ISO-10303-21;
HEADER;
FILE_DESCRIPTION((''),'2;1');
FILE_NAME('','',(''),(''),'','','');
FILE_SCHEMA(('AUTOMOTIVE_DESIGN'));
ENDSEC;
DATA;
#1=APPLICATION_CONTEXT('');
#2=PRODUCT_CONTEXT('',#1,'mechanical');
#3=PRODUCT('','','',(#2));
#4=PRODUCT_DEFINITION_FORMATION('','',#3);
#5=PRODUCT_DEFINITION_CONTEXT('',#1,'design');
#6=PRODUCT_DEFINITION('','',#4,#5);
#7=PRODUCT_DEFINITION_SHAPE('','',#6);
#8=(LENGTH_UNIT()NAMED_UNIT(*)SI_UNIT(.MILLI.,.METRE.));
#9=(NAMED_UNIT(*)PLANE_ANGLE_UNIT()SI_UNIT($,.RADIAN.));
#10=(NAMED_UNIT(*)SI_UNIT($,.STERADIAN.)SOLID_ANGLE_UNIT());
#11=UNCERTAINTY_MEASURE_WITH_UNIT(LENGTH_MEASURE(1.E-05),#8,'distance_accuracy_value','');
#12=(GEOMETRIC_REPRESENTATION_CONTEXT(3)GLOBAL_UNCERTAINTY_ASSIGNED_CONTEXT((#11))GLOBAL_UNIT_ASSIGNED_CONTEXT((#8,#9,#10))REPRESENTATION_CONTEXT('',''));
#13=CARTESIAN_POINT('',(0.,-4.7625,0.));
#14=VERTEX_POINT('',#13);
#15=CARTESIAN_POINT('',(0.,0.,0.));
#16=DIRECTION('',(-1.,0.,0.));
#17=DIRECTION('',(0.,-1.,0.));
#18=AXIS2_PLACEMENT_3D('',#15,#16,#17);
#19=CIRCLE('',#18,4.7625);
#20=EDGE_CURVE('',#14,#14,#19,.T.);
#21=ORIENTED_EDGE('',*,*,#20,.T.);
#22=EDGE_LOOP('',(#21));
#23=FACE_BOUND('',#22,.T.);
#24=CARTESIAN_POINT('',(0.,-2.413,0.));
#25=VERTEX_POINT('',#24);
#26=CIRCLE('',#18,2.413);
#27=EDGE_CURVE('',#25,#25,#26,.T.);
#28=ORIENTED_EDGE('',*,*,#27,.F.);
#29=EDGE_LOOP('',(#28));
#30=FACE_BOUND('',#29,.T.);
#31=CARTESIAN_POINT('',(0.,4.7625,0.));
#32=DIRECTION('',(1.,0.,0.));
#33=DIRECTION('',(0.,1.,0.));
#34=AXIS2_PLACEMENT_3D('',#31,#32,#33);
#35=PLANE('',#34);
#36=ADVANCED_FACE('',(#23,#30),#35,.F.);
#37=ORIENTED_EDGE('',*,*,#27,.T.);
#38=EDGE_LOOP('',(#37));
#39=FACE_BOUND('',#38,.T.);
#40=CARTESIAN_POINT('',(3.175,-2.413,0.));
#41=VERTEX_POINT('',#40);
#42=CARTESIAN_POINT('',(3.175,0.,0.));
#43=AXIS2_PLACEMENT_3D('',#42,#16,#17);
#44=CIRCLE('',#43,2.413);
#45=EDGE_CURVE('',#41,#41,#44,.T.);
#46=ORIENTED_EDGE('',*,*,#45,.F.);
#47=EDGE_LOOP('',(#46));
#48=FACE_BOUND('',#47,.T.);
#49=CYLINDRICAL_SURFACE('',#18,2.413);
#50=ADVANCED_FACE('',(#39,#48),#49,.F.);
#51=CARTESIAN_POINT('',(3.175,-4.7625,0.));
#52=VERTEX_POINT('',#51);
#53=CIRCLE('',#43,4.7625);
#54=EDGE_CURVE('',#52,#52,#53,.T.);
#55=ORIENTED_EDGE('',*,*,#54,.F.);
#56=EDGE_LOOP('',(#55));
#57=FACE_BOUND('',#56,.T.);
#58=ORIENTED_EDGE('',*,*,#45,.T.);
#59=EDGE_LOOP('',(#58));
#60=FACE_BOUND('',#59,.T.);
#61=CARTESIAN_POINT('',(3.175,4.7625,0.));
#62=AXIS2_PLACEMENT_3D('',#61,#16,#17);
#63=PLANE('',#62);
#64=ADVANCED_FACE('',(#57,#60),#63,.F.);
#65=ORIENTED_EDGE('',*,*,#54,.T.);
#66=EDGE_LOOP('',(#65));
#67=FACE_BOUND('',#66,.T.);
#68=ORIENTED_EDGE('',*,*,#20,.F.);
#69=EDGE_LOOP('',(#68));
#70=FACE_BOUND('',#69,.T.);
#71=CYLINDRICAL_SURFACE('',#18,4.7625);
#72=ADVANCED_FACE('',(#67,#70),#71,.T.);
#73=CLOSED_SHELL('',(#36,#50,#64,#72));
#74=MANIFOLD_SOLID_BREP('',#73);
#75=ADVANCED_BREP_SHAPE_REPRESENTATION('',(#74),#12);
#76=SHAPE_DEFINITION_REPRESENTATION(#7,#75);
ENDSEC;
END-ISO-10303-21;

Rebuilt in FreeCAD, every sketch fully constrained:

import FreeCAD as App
import Part
import Sketcher
from FreeCAD import Vector
Q = App.Units.Quantity

doc = App.newDocument("Part")
body = doc.addObject("PartDesign::Body", "Body")

sketch1 = body.newObject("Sketcher::SketchObject", "Sketch")
sketch1.AttachmentSupport = (doc.getObject("XY_Plane"), [""])
sketch1.MapMode = "FlatFace"
sketch1.addGeometry(Part.LineSegment(Vector(0, 4.7625, 0), Vector(0, 2.413, 0)), False)
sketch1.addGeometry(Part.LineSegment(Vector(0, 2.413, 0), Vector(3.175, 2.413, 0)), False)
sketch1.addGeometry(Part.LineSegment(Vector(3.175, 2.413, 0), Vector(3.175, 4.7625, 0)), False)
sketch1.addGeometry(Part.LineSegment(Vector(3.175, 4.7625, 0), Vector(0, 4.7625, 0)), False)
sketch1.addConstraint(Sketcher.Constraint("Coincident", 0, 2, 1, 1))
sketch1.addConstraint(Sketcher.Constraint("Coincident", 1, 2, 2, 1))
sketch1.addConstraint(Sketcher.Constraint("Coincident", 2, 2, 3, 1))
sketch1.addConstraint(Sketcher.Constraint("Coincident", 3, 2, 0, 1))
sketch1.addConstraint(Sketcher.Constraint("Vertical", 0))
sketch1.addConstraint(Sketcher.Constraint("Horizontal", 1))
sketch1.addConstraint(Sketcher.Constraint("Vertical", 2))
sketch1.addConstraint(Sketcher.Constraint("Horizontal", 3))
sketch1.addConstraint(Sketcher.Constraint("PointOnObject", 0, 2, -2))
sketch1.addConstraint(Sketcher.Constraint("DistanceX", 1, 1, 1, 2, Q("0.125 in")))
sketch1.addConstraint(Sketcher.Constraint("DistanceY", 0, 2, 0, 1, Q("0.0925 in")))
sketch1.addConstraint(Sketcher.Constraint("DistanceY", -1, 1, 0, 2, Q("0.095 in")))
revolution = body.newObject("PartDesign::Revolution", "Revolution")
revolution.Profile = sketch1
revolution.ReferenceAxis = (sketch1, ["H_Axis"])
revolution.Angle = 360

doc.recompute()
